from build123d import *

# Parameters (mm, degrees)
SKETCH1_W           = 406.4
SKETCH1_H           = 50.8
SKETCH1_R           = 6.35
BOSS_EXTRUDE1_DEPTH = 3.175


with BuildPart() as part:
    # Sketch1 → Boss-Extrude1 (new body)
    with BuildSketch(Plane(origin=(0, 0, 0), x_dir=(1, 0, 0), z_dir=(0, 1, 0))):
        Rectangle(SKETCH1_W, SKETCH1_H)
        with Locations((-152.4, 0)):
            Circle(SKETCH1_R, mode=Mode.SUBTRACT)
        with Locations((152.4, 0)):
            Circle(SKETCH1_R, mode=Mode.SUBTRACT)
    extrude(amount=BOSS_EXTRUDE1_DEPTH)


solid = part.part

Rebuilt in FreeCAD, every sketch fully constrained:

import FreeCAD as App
import Part
import Sketcher

V = App.Vector
Q = App.Units.Quantity


def add_polygon(sketch, points):
    """Adds a closed chain of lines whose ends are joined by coincident constraints."""
    first, n = sketch.GeometryCount, len(points)
    for a, b in zip(points, points[1:] + points[:1]):
        sketch.addGeometry(Part.LineSegment(App.Vector(*a, 0), App.Vector(*b, 0)), False)
    for i in range(n):
        sketch.addConstraint(Sketcher.Constraint("Coincident", first + i, 2, first + (i + 1) % n, 1))

doc = App.newDocument("Part")
params = doc.addObject("Spreadsheet::Sheet", "Params")
for row, (alias, value) in enumerate([
    ("sketch1_diameter", "0.5 in"),
    ("sketch1_width", "16 in"),
    ("sketch1_height", "2 in"),
    ("pad1_length", "0.125 in"),
], start=1):
    params.set(f"A{row}", alias)
    params.set(f"B{row}", "=" + value)
    params.setAlias(f"B{row}", alias)

body = doc.addObject("PartDesign::Body", "Body")

# Sketch on XZ plane
sketch1 = body.newObject("Sketcher::SketchObject", "Sketch")
sketch1.AttachmentSupport = (doc.getObject("XZ_Plane"), [""])
sketch1.MapMode = "FlatFace"
add_polygon(sketch1, [(-203, -25), (-203, 25), (203, 25), (203, -25)])  # lines 0-3
sketch1.addGeometry(Part.Circle(V(-152, 0, 0), V(0, 0, 1), 6), False)  # 4
sketch1.addGeometry(Part.Circle(V(152, 0, 0), V(0, 0, 1), 6), False)  # 5
sketch1.addConstraint([
    Sketcher.Constraint("Vertical", 0),
    Sketcher.Constraint("Horizontal", 1),
    Sketcher.Constraint("Vertical", 2),
    Sketcher.Constraint("Horizontal", 3),
    Sketcher.Constraint("Equal", 4, 5),
    Sketcher.Constraint("Symmetric", 4, 3, 5, 3, -1, 1),
    Sketcher.Constraint("Symmetric", 0, 2, 2, 2, -1, 1),
    Sketcher.Constraint("PointOnObject", 4, 3, -1),
    Sketcher.Constraint("Diameter", 4, Q("0.5 in")),
    Sketcher.Constraint("DistanceX", 1, 1, 1, 2, Q("16 in")),
    Sketcher.Constraint("DistanceY", 0, 1, 0, 2, Q("2 in")),
    Sketcher.Constraint("DistanceX", 4, 3, -1, 1, Q("6 in")),
])
sketch1.setExpression("Constraints[12]", "Params.sketch1_diameter")
sketch1.setExpression("Constraints[13]", "Params.sketch1_width")
sketch1.setExpression("Constraints[14]", "Params.sketch1_height")
pad1 = body.newObject("PartDesign::Pad", "Pad")
pad1.Profile = sketch1
pad1.setExpression("Length", "Params.pad1_length")
pad1.Reversed = True

doc.recompute()
